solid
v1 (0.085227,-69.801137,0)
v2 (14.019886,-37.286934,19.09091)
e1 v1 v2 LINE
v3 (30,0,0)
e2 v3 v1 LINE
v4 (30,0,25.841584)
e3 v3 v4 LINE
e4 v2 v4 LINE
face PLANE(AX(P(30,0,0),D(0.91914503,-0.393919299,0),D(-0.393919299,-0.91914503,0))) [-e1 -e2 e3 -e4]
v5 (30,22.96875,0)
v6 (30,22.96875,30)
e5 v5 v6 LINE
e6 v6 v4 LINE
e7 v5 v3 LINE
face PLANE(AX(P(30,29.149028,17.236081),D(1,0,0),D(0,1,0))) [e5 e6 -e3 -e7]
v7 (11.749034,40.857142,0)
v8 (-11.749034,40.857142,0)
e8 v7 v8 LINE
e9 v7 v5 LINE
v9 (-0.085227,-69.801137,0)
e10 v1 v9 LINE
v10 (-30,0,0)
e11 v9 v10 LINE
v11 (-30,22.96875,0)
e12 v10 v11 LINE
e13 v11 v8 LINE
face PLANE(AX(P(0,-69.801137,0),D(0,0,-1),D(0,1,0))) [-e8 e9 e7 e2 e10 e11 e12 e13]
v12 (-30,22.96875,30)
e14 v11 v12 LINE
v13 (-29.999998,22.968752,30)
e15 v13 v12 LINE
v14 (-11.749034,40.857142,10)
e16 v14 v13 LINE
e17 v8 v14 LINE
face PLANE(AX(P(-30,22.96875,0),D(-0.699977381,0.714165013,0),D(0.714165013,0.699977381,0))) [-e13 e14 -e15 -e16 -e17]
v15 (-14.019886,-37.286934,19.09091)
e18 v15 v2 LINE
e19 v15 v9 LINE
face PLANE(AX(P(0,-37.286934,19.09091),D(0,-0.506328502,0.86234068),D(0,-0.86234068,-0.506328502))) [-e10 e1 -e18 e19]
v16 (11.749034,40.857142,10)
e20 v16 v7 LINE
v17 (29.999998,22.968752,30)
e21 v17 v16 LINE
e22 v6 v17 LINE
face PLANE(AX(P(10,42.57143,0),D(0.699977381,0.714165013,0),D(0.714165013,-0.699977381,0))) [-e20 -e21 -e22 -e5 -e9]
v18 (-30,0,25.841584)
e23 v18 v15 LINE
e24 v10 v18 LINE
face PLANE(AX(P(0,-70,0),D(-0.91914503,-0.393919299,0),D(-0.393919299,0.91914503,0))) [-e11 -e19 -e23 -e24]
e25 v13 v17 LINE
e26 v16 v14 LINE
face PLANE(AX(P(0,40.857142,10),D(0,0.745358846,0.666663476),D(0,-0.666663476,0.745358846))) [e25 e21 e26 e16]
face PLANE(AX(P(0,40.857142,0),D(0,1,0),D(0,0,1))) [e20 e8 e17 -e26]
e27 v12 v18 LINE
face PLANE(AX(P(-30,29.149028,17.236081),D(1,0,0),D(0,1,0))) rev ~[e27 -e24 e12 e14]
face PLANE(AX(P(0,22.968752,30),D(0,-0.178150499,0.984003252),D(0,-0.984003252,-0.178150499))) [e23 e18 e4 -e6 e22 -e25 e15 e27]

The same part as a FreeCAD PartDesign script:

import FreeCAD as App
import Part
import Sketcher
from FreeCAD import Vector
Q = App.Units.Quantity


def add_polygon(sketch, points):
    """Adds a closed chain of lines whose ends are joined by coincident constraints."""
    first, n = sketch.GeometryCount, len(points)
    for a, b in zip(points, points[1:] + points[:1]):
        sketch.addGeometry(Part.LineSegment(App.Vector(*a, 0), App.Vector(*b, 0)), False)
    for i in range(n):
        sketch.addConstraint(Sketcher.Constraint("Coincident", first + i, 2, first + (i + 1) % n, 1))

doc = App.newDocument("Part")
params = doc.addObject("Spreadsheet::Sheet", "Params")
for row, (alias, value) in enumerate([
    ("sketch1_height", "10 mm"),
    ("pad1_length", "30 mm"),
    ("pad1_length2", "30 mm"),
    ("sketch2_width", "20 mm"),
    ("pocket1_length", "40 mm"),
], start=1):
    params.set(f"A{row}", alias)
    params.set(f"B{row}", "=" + value)
    params.setAlias(f"B{row}", alias)

body = doc.addObject("PartDesign::Body", "Body")

sketch1 = doc.addObject("Sketcher::SketchObject", "Sketch")
body.addObject(sketch1)
sketch1.AttachmentSupport = (doc.YZ_Plane, [""])
sketch1.MapMode = "FlatFace"
add_polygon(sketch1, [(40.857142, 10), (22.968752, 30), (-37.286934, 19.09091), (-69.801137, 0), (40.857142, 0)])
sketch1.addConstraint(Sketcher.Constraint("Horizontal", 3))
sketch1.addConstraint(Sketcher.Constraint("Vertical", 4))
sketch1.addConstraint(Sketcher.Constraint("PointOnObject", 2, 2, -1))
sketch1.addConstraint(Sketcher.Constraint("DistanceY", 4, 1, 4, 2, Q("10 mm")))
sketch1.addConstraint(Sketcher.Constraint("DistanceY", -1, 1, 0, 2, Q("30 mm")))
sketch1.addConstraint(Sketcher.Constraint("DistanceX", 3, 1, 3, 2, Q("110.658279 mm")))
sketch1.addConstraint(Sketcher.Constraint("Distance", 1, Q("61.235251 mm")))
sketch1.addConstraint(Sketcher.Constraint("Distance", 2, Q("37.704592 mm")))
sketch1.addConstraint(Sketcher.Constraint("DistanceY", -1, 1, 1, 2, Q("19.09091 mm")))
sketch1.addConstraint(Sketcher.Constraint("DistanceX", -1, 1, 0, 2, Q("22.968752 mm")))
sketch1.setExpression("Constraints[8]", "Params.sketch1_height")
pad1 = doc.addObject("PartDesign::Pad", "Pad")
body.addObject(pad1)
pad1.Profile = sketch1
pad1.Type = "TwoLengths"
pad1.setExpression("Length", "Params.pad1_length")
pad1.setExpression("Length2", "Params.pad1_length2")

sketch2 = doc.addObject("Sketcher::SketchObject", "Sketch001")
body.addObject(sketch2)
sketch2.AttachmentSupport = (doc.XY_Plane, [""])
sketch2.MapMode = "FlatFace"
add_polygon(sketch2, [(-62.725201, 67.305125), (-62.725201, -77.386059), (66.241086, -77.386059), (66.241086, 67.305125)])
add_polygon(sketch2, [(-30, 22.96875), (-10, 42.57143), (10, 42.57143), (30, 22.96875), (30, 0), (0, -70), (-30, 0)])
sketch2.addConstraint(Sketcher.Constraint("Vertical", 0))
sketch2.addConstraint(Sketcher.Constraint("Horizontal", 1))
sketch2.addConstraint(Sketcher.Constraint("Vertical", 2))
sketch2.addConstraint(Sketcher.Constraint("Horizontal", 3))
sketch2.addConstraint(Sketcher.Constraint("Horizontal", 5))
sketch2.addConstraint(Sketcher.Constraint("Vertical", 7))
sketch2.addConstraint(Sketcher.Constraint("Vertical", 10))
sketch2.addConstraint(Sketcher.Constraint("Symmetric", 7, 2, 9, 2, -1, 1))
sketch2.addConstraint(Sketcher.Constraint("PointOnObject", 7, 2, -1))
sketch2.addConstraint(Sketcher.Constraint("PointOnObject", 8, 2, -2))
sketch2.addConstraint(Sketcher.Constraint("Horizontal", 6, 2, 10, 2))
sketch2.addConstraint(Sketcher.Constraint("Equal", 4, 6))
sketch2.addConstraint(Sketcher.Constraint("DistanceX", 5, 1, 5, 2, Q("20 mm")))
sketch2.addConstraint(Sketcher.Constraint("DistanceX", -1, 1, 6, 2, Q("30 mm")))
sketch2.addConstraint(Sketcher.Constraint("DistanceY", 8, 2, -1, 1, Q("70 mm")))
sketch2.addConstraint(Sketcher.Constraint("DistanceY", 7, 2, 7, 1, Q("22.96875 mm")))
sketch2.addConstraint(Sketcher.Constraint("DistanceX", 0, 2, -1, 1, Q("62.725201 mm")))
sketch2.addConstraint(Sketcher.Constraint("DistanceX", 1, 1, 1, 2, Q("128.966287 mm")))
sketch2.addConstraint(Sketcher.Constraint("DistanceY", 0, 2, 0, 1, Q("144.691184 mm")))
sketch2.addConstraint(Sketcher.Constraint("DistanceY", 0, 2, -1, 1, Q("77.386059 mm")))
sketch2.addConstraint(Sketcher.Constraint("DistanceY", -1, 1, 4, 2, Q("42.57143 mm")))
sketch2.setExpression("Constraints[23]", "Params.sketch2_width")
pocket1 = doc.addObject("PartDesign::Pocket", "Pocket")
body.addObject(pocket1)
pocket1.Profile = sketch2
pocket1.setExpression("Length", "Params.pocket1_length")
pocket1.Reversed = True

doc.recompute()
